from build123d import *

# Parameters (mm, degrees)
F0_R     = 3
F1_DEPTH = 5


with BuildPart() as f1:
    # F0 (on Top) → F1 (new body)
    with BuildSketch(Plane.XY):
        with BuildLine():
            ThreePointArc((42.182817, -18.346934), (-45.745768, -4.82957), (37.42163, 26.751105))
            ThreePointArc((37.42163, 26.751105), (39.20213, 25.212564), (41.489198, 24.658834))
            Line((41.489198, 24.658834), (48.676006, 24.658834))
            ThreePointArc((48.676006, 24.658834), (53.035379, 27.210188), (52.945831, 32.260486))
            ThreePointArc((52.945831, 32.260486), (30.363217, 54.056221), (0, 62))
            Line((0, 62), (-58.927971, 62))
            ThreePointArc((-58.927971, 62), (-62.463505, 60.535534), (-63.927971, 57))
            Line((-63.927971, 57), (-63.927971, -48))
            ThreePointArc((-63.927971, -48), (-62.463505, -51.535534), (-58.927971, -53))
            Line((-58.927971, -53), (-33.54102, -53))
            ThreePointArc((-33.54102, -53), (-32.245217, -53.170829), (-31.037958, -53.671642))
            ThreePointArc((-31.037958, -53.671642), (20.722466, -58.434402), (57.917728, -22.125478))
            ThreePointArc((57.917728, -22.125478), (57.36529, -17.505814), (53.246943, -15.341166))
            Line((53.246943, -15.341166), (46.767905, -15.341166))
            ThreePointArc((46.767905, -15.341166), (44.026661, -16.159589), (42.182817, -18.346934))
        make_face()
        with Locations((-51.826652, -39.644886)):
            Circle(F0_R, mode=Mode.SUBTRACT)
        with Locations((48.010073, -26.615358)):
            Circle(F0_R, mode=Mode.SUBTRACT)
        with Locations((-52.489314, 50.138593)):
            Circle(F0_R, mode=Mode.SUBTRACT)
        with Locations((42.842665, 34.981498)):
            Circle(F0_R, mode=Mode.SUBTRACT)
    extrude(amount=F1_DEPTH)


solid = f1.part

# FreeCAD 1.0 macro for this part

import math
import FreeCAD as App
import Part
import Sketcher

V = App.Vector

doc = App.newDocument("Part")
params = doc.addObject("Spreadsheet::Sheet", "Params")
for row, (alias, value) in enumerate([
    ("sketch1_diameter", "6 mm"),
    ("sketch1_diameter2", "6 mm"),
    ("sketch1_diameter3", "6 mm"),
    ("sketch1_diameter4", "6 mm"),
    ("sketch1_radius", "46 mm"),
    ("pad1_length", "5 mm"),
], start=1):
    params.set(f"A{row}", alias)
    params.set(f"B{row}", "=" + value)
    params.setAlias(f"B{row}", alias)

body = doc.addObject("PartDesign::Body", "Body")

sketch1 = body.newObject("Sketcher::SketchObject", "Sketch")
sketch1.AttachmentSupport = (doc.getObject("XY_Plane"), [""])
sketch1.MapMode = "FlatFace"
sketch1.addGeometry(Part.ArcOfCircle(Part.Circle(V(0, 0, 0), V(0, 0, 1), 46), math.radians(35.559337), math.radians(336.49392)), False)
sketch1.addGeometry(Part.ArcOfCircle(Part.Circle(V(41.489199, 29.658835, 0), V(0, 0, 1), 5.000001), math.radians(-144.440653), math.radians(-90.000011)), False)
sketch1.addGeometry(Part.LineSegment(V(41.489198, 24.658834, 0), V(48.676006, 24.658834, 0)), False)
sketch1.addGeometry(Part.ArcOfCircle(Part.Circle(V(48.676006, 29.658834, 0), V(0, 0, 1), 5), math.radians(-90.000001), math.radians(31.35442)), False)
sketch1.addGeometry(Part.ArcOfCircle(Part.Circle(V(-0.000001, -0.000001, 0), V(0, 0, 1), 62.000001), math.radians(31.354418), math.radians(89.999999)), False)
sketch1.addGeometry(Part.LineSegment(V(0, 62, 0), V(-58.927971, 62, 0)), False)
sketch1.addGeometry(Part.ArcOfCircle(Part.Circle(V(-58.927971, 57, 0), V(0, 0, 1), 5), math.radians(89.999996), math.radians(180.000004)), False)
sketch1.addGeometry(Part.LineSegment(V(-63.927971, 57, 0), V(-63.927971, -48, 0)), False)
sketch1.addGeometry(Part.ArcOfCircle(Part.Circle(V(-58.927971, -48, 0), V(0, 0, 1), 5), math.radians(179.999996), math.radians(270.000004)), False)
sketch1.addGeometry(Part.LineSegment(V(-58.927971, -53, 0), V(-33.54102, -53, 0)), False)
sketch1.addGeometry(Part.ArcOfCircle(Part.Circle(V(-33.541022, -58.000009, 0), V(0, 0, 1), 5.000009), math.radians(59.95951), math.radians(89.999977)), False)
sketch1.addGeometry(Part.ArcOfCircle(Part.Circle(V(0, 0.000001, 0), V(0, 0, 1), 62.000001), math.radians(-120.040512), math.radians(-20.90764)), False)
sketch1.addGeometry(Part.ArcOfCircle(Part.Circle(V(53.246943, -20.341166, 0), V(0, 0, 1), 5), math.radians(-20.907633), math.radians(90.000005)), False)
sketch1.addGeometry(Part.LineSegment(V(53.246943, -15.341166, 0), V(46.767905, -15.341166, 0)), False)
sketch1.addGeometry(Part.ArcOfCircle(Part.Circle(V(46.767903, -20.341161, 0), V(0, 0, 1), 4.999995), math.radians(89.999974), math.radians(156.493953)), False)
sketch1.addGeometry(Part.Circle(V(-51.826652, -39.644886, 0), V(0, 0, 1), 3), False)
sketch1.addGeometry(Part.Circle(V(48.010073, -26.615358, 0), V(0, 0, 1), 3), False)
sketch1.addGeometry(Part.Circle(V(-52.489314, 50.138593, 0), V(0, 0, 1), 3), False)
sketch1.addGeometry(Part.Circle(V(42.842665, 34.981498, 0), V(0, 0, 1), 3), False)
sketch1.addConstraint(Sketcher.Constraint("Coincident", 0, 1, 1, 1))
sketch1.addConstraint(Sketcher.Constraint("Coincident", 1, 2, 2, 1))
sketch1.addConstraint(Sketcher.Constraint("Coincident", 2, 2, 3, 1))
sketch1.addConstraint(Sketcher.Constraint("Coincident", 3, 2, 4, 1))
sketch1.addConstraint(Sketcher.Constraint("Coincident", 4, 2, 5, 1))
sketch1.addConstraint(Sketcher.Constraint("Coincident", 5, 2, 6, 1))
sketch1.addConstraint(Sketcher.Constraint("Coincident", 6, 2, 7, 1))
sketch1.addConstraint(Sketcher.Constraint("Coincident", 7, 2, 8, 1))
sketch1.addConstraint(Sketcher.Constraint("Coincident", 8, 2, 9, 1))
sketch1.addConstraint(Sketcher.Constraint("Coincident", 9, 2, 10, 2))
sketch1.addConstraint(Sketcher.Constraint("Coincident", 10, 1, 11, 1))
sketch1.addConstraint(Sketcher.Constraint("Coincident", 11, 2, 12, 1))
sketch1.addConstraint(Sketcher.Constraint("Coincident", 12, 2, 13, 1))
sketch1.addConstraint(Sketcher.Constraint("Coincident", 13, 2, 14, 1))
sketch1.addConstraint(Sketcher.Constraint("Coincident", 14, 2, 0, 2))
sketch1.addConstraint(Sketcher.Constraint("Horizontal", 2))
sketch1.addConstraint(Sketcher.Constraint("Horizontal", 5))
sketch1.addConstraint(Sketcher.Constraint("Vertical", 7))
sketch1.addConstraint(Sketcher.Constraint("Horizontal", 9))
sketch1.addConstraint(Sketcher.Constraint("Horizontal", 13))
sketch1.addConstraint(Sketcher.Constraint("Coincident", 0, 3, -1, 1))
sketch1.addConstraint(Sketcher.Constraint("Coincident", 4, 3, -1, 1))
sketch1.addConstraint(Sketcher.Constraint("Coincident", 11, 3, -1, 1))
sketch1.addConstraint(Sketcher.Constraint("PointOnObject", 4, 2, -2))
sketch1.addConstraint(Sketcher.Constraint("Diameter", 15, 6.0))
sketch1.addConstraint(Sketcher.Constraint("Diameter", 16, 6.0))
sketch1.addConstraint(Sketcher.Constraint("Diameter", 17, 6.0))
sketch1.addConstraint(Sketcher.Constraint("Diameter", 18, 6.0))
sketch1.addConstraint(Sketcher.Constraint("Radius", 0, 46.0))
sketch1.addConstraint(Sketcher.Constraint("Radius", 1, 5.000001))
sketch1.addConstraint(Sketcher.Constraint("Radius", 3, 5.0))
sketch1.addConstraint(Sketcher.Constraint("Radius", 4, 62.000001))
sketch1.addConstraint(Sketcher.Constraint("Radius", 6, 5.0))
sketch1.addConstraint(Sketcher.Constraint("Radius", 8, 5.0))
sketch1.addConstraint(Sketcher.Constraint("Radius", 11, 62.000001))
sketch1.addConstraint(Sketcher.Constraint("Radius", 12, 5.0))
sketch1.addConstraint(Sketcher.Constraint("DistanceY", 7, 2, 7, 1, 105.0))
sketch1.addConstraint(Sketcher.Constraint("DistanceY", 8, 3, -1, 1, 48.0))
sketch1.addConstraint(Sketcher.Constraint("DistanceY", -1, 1, 6, 2, 57.0))
sketch1.addConstraint(Sketcher.Constraint("DistanceY", 12, 3, 3, 3, 50.0))
sketch1.addConstraint(Sketcher.Constraint("DistanceX", 6, 2, 5, 2, 5.0))
sketch1.addConstraint(Sketcher.Constraint("DistanceX", 7, 2, 8, 2, 5.0))
sketch1.addConstraint(Sketcher.Constraint("Radius", 10, 5.000009))
sketch1.addConstraint(Sketcher.Constraint("Radius", 14, 4.999995))
sketch1.addConstraint(Sketcher.Constraint("DistanceX", 5, 2, 5, 1, 58.927971))
sketch1.addConstraint(Sketcher.Constraint("DistanceX", 9, 1, 9, 2, 25.386951))
sketch1.addConstraint(Sketcher.Constraint("DistanceX", 13, 2, 13, 1, 6.479038))
sketch1.addConstraint(Sketcher.Constraint("DistanceX", -1, 1, 1, 3, 41.489199))
sketch1.addConstraint(Sketcher.Constraint("DistanceY", -1, 1, 18, 3, 34.981498))
sketch1.addConstraint(Sketcher.Constraint("DistanceX", -1, 1, 1, 2, 41.489198))
sketch1.addConstraint(Sketcher.Constraint("DistanceX", 2, 1, 2, 2, 7.186808))
sketch1.addConstraint(Sketcher.Constraint("DistanceY", 16, 3, -1, 1, 26.615358))
sketch1.addConstraint(Sketcher.Constraint("DistanceX", -1, 1, 0, 1, 37.42163))
sketch1.addConstraint(Sketcher.Constraint("DistanceX", -1, 1, 3, 2, 52.945831))
sketch1.addConstraint(Sketcher.Constraint("DistanceX", 10, 1, -1, 1, 31.037958))
sketch1.addConstraint(Sketcher.Constraint("DistanceX", 8, 3, 15, 3, 7.101319))
sketch1.addConstraint(Sketcher.Constraint("DistanceX", 14, 3, 16, 3, 1.24217))
sketch1.addConstraint(Sketcher.Constraint("DistanceY", 11, 3, 17, 3, 50.138592))
sketch1.addConstraint(Sketcher.Constraint("DistanceX", 17, 3, 15, 3, 0.662662))
sketch1.addConstraint(Sketcher.Constraint("DistanceY", 15, 3, 17, 3, 89.783479))
sketch1.addConstraint(Sketcher.Constraint("DistanceX", 18, 3, 3, 3, 5.833341))
sketch1.addConstraint(Sketcher.Constraint("DistanceY", 16, 3, 11, 2, 4.48988))
sketch1.addConstraint(Sketcher.Constraint("DistanceX", 14, 3, 12, 2, 6.47904))
sketch1.addConstraint(Sketcher.Constraint("DistanceY", 14, 2, 13, 2, 3.005768))
sketch1.setExpression("Constraints[24]", "Params.sketch1_diameter")
sketch1.setExpression("Constraints[25]", "Params.sketch1_diameter2")
sketch1.setExpression("Constraints[26]", "Params.sketch1_diameter3")
sketch1.setExpression("Constraints[27]", "Params.sketch1_diameter4")
sketch1.setExpression("Constraints[28]", "Params.sketch1_radius")
pad1 = body.newObject("PartDesign::Pad", "Pad")
pad1.Profile = sketch1
pad1.setExpression("Length", "Params.pad1_length")

doc.recompute()
